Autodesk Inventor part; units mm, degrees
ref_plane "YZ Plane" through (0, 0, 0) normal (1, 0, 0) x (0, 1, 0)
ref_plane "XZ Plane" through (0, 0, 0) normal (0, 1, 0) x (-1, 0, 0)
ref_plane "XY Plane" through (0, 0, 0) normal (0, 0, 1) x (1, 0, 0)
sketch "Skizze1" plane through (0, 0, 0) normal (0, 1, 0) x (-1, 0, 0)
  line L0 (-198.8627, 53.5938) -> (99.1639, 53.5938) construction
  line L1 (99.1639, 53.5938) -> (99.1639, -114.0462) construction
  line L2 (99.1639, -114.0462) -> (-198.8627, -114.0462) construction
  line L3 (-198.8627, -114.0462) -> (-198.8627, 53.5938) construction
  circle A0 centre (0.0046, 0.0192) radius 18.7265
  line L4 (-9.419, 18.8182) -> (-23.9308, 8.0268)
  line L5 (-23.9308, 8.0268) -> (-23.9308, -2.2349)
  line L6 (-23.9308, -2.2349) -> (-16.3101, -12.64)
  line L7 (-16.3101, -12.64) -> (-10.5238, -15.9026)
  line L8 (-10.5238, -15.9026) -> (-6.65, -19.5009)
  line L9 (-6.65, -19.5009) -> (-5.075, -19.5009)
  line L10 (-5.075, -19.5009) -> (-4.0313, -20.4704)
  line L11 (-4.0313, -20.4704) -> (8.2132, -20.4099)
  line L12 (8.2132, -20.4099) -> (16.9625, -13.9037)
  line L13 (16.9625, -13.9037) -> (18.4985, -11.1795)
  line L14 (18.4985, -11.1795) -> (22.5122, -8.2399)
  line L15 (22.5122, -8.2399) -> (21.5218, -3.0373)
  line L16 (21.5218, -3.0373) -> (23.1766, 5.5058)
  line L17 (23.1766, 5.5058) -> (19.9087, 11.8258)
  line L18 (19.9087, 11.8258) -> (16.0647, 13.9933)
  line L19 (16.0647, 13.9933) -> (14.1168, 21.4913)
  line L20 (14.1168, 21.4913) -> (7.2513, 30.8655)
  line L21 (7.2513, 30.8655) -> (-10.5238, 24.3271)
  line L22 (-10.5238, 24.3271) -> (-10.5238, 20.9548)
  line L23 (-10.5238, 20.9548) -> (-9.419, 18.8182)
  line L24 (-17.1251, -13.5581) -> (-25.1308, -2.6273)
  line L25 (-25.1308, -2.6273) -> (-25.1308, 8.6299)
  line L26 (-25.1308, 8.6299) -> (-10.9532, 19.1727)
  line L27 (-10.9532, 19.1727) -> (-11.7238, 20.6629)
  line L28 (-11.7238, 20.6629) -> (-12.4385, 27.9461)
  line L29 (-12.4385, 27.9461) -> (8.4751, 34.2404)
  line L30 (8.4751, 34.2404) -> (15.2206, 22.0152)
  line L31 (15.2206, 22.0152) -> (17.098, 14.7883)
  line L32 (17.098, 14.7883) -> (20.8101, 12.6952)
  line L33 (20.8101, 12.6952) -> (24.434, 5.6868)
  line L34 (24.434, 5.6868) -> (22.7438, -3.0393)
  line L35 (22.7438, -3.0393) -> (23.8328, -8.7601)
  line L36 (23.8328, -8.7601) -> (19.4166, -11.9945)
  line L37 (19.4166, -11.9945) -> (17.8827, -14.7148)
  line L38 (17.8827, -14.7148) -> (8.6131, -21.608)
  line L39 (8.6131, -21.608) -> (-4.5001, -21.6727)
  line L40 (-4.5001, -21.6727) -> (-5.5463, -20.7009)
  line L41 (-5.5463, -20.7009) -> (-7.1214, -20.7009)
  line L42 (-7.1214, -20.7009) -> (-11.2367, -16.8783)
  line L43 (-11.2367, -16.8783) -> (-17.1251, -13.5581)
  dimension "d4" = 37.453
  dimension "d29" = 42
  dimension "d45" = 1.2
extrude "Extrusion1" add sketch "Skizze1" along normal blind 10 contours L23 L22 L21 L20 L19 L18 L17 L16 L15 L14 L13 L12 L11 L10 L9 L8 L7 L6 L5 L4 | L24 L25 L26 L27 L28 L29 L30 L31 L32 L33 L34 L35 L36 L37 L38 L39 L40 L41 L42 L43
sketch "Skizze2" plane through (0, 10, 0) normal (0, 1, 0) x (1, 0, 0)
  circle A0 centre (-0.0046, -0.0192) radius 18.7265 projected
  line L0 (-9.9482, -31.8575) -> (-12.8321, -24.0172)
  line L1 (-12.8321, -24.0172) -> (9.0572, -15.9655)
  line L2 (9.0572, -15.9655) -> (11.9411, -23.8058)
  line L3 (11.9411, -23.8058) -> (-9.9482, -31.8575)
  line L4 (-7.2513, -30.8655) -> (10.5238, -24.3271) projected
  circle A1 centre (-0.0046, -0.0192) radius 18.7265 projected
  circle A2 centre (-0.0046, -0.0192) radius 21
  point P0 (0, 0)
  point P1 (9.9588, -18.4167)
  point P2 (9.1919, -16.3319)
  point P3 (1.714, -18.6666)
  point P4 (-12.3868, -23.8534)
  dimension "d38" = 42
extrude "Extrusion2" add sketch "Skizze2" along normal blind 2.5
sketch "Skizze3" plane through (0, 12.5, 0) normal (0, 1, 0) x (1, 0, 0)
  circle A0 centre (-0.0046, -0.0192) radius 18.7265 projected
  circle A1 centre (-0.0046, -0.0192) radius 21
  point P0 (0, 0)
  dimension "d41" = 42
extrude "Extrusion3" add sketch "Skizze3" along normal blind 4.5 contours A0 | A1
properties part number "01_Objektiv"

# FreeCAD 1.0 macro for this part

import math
import FreeCAD as App
import Part
import Sketcher
Q = App.Units.Quantity


def add_polygon(sketch, points):
    """Adds a closed chain of lines whose ends are joined by coincident constraints."""
    first, n = sketch.GeometryCount, len(points)
    for a, b in zip(points, points[1:] + points[:1]):
        sketch.addGeometry(Part.LineSegment(App.Vector(*a, 0), App.Vector(*b, 0)), False)
    for i in range(n):
        sketch.addConstraint(Sketcher.Constraint("Coincident", first + i, 2, first + (i + 1) % n, 1))

doc = App.newDocument("Part")
body = doc.addObject("PartDesign::Body", "Body")

# Sketch on XZ plane
sketch1 = body.newObject("Sketcher::SketchObject", "Sketch")
sketch1.AttachmentSupport = (doc.getObject("XZ_Plane"), [""])
sketch1.MapMode = "FlatFace"
add_polygon(sketch1, [(25.1, -2.6), (17.1, -13.6), (11.2, -16.9), (7.1, -20.7), (5.5, -20.7), (4.5, -21.7), (-8.6, -21.6), (-17.9, -14.7), (-19.4, -12), (-23.8, -8.8), (-22.7, -3), (-24.4, 5.7), (-20.8, 12.7), (-17.1, 14.8), (-15.2, 22), (-8.5, 34.2), (12.4, 27.9), (11.7, 20.7), (11, 19.2), (25.1, 8.6)])  # lines 0-19
sketch1.addGeometry(Part.Circle(App.Vector(0, 0, 0), App.Vector(0, 0, 1), 18.7), False)  # 20
sketch1.addConstraint(Sketcher.Constraint("Horizontal", 3))
sketch1.addConstraint(Sketcher.Constraint("Vertical", 19))
sketch1.addConstraint(Sketcher.Constraint("Parallel", 2, 4))
sketch1.addConstraint(Sketcher.Constraint("Perpendicular", 1, 7))
sketch1.addConstraint(Sketcher.Constraint("Perpendicular", 0, 8))
sketch1.addConstraint(Sketcher.Constraint("Perpendicular", 7, 12))
sketch1.addConstraint(Sketcher.Constraint("Parallel", 11, 17))
sketch1.addConstraint(Sketcher.Constraint("Parallel", 6, 18))
sketch1.addConstraint(Sketcher.Constraint("Diameter", 20, Q("37.453 mm")))
sketch1.addConstraint(Sketcher.Constraint("DistanceX", -1, 1, 4, 2, Q("4.5 mm")))
sketch1.addConstraint(Sketcher.Constraint("Angle", 0, Q("-126.219 deg")))
sketch1.addConstraint(Sketcher.Constraint("Angle", 15, Q("-16.75 deg")))
sketch1.addConstraint(Sketcher.Constraint("Distance", 1, Q("6.76 mm")))
sketch1.addConstraint(Sketcher.Constraint("Distance", 11, Q("7.89 mm")))
sketch1.addConstraint(Sketcher.Constraint("DistanceX", 3, 2, 3, 1, Q("1.575 mm")))
sketch1.addConstraint(Sketcher.Constraint("DistanceY", 8, 2, -1, 1, Q("8.76 mm")))
sketch1.addConstraint(Sketcher.Constraint("DistanceX", 11, 2, -1, 1, Q("20.81 mm")))
sketch1.addConstraint(Sketcher.Constraint("DistanceY", -1, 1, 18, 2, Q("8.63 mm")))
sketch1.addConstraint(Sketcher.Constraint("DistanceY", 2, 2, 20, 3, Q("20.72 mm")))
sketch1.addConstraint(Sketcher.Constraint("DistanceX", 8, 2, 6, 2, Q("5.95 mm")))
sketch1.addConstraint(Sketcher.Constraint("DistanceY", 11, 2, 13, 2, Q("9.32 mm")))
sketch1.addConstraint(Sketcher.Constraint("Distance", 0, Q("13.549 mm")))
sketch1.addConstraint(Sketcher.Constraint("Distance", 4, Q("1.428 mm")))
sketch1.addConstraint(Sketcher.Constraint("Distance", 7, Q("3.123 mm")))
sketch1.addConstraint(Sketcher.Constraint("Distance", 8, Q("5.474 mm")))
sketch1.addConstraint(Sketcher.Constraint("Distance", 18, Q("17.668 mm")))
sketch1.addConstraint(Sketcher.Constraint("DistanceY", 19, 2, 19, 1, Q("11.2572 mm")))
sketch1.addConstraint(Sketcher.Constraint("DistanceX", -1, 1, 0, 2, Q("17.125 mm")))
sketch1.addConstraint(Sketcher.Constraint("DistanceY", 2, 2, -1, 1, Q("20.701 mm")))
sketch1.addConstraint(Sketcher.Constraint("DistanceX", 5, 2, -1, 1, Q("8.613 mm")))
sketch1.addConstraint(Sketcher.Constraint("DistanceY", 5, 2, -1, 1, Q("21.608 mm")))
sketch1.addConstraint(Sketcher.Constraint("DistanceX", 10, 2, -1, 1, Q("24.434 mm")))
sketch1.addConstraint(Sketcher.Constraint("DistanceX", 12, 2, -1, 1, Q("17.098 mm")))
sketch1.addConstraint(Sketcher.Constraint("DistanceX", 14, 2, -1, 1, Q("8.475 mm")))
sketch1.addConstraint(Sketcher.Constraint("DistanceY", -1, 1, 15, 2, Q("27.946 mm")))
sketch1.addConstraint(Sketcher.Constraint("DistanceY", -1, 1, 16, 2, Q("20.663 mm")))
sketch1.addConstraint(Sketcher.Constraint("DistanceX", 20, 3, 2, 2, Q("7.126 mm")))
sketch1.addConstraint(Sketcher.Constraint("DistanceX", 6, 2, 20, 3, Q("17.878 mm")))
sketch1.addConstraint(Sketcher.Constraint("DistanceX", 8, 2, 9, 2, Q("1.089 mm")))
sketch1.addConstraint(Sketcher.Constraint("DistanceY", 9, 2, 10, 2, Q("8.726 mm")))
sketch1.addConstraint(Sketcher.Constraint("DistanceY", 8, 2, 10, 2, Q("14.447 mm")))
sketch1.addConstraint(Sketcher.Constraint("DistanceX", 13, 2, 20, 3, Q("15.216 mm")))
sketch1.addConstraint(Sketcher.Constraint("DistanceY", 12, 2, 14, 2, Q("19.452 mm")))
pad1 = body.newObject("PartDesign::Pad", "Pad")
pad1.Profile = sketch1
pad1.Length = 10
pad1.Reversed = True

# Sketch on XZ plane
sketch2 = body.newObject("Sketcher::SketchObject", "Sketch001")
sketch2.AttachmentSupport = (doc.getObject("XZ_Plane"), [""])
sketch2.MapMode = "FlatFace"
sketch2.AttachmentOffset = App.Placement(App.Vector(0, 0, -10), App.Rotation())
sketch2.addGeometry(Part.LineSegment(App.Vector(-3.8, 20.7, 0), App.Vector(-12.8, 24, 0)), False)
sketch2.addGeometry(Part.LineSegment(App.Vector(-12.8, 24, 0), App.Vector(-9.9, 31.9, 0)), False)
sketch2.addGeometry(Part.LineSegment(App.Vector(-9.9, 31.9, 0), App.Vector(-7.3, 30.9, 0)), False)
sketch2.addGeometry(Part.LineSegment(App.Vector(-7.3, 30.9, 0), App.Vector(10.5, 24.3, 0)), False)
sketch2.addGeometry(Part.LineSegment(App.Vector(10.5, 24.3, 0), App.Vector(11.9, 23.8, 0)), False)
sketch2.addGeometry(Part.LineSegment(App.Vector(11.9, 23.8, 0), App.Vector(10, 18.5, 0)), False)
sketch2.addGeometry(Part.ArcOfCircle(Part.Circle(App.Vector(0, 0, 0), App.Vector(0, 0, 1), 21), math.radians(100), math.radians(422)), False)
sketch2.addConstraint(Sketcher.Constraint("Coincident", 0, 2, 1, 1))
sketch2.addConstraint(Sketcher.Constraint("Coincident", 1, 2, 2, 1))
sketch2.addConstraint(Sketcher.Constraint("Coincident", 2, 2, 3, 1))
sketch2.addConstraint(Sketcher.Constraint("Coincident", 3, 2, 4, 1))
sketch2.addConstraint(Sketcher.Constraint("Coincident", 4, 2, 5, 1))
sketch2.addConstraint(Sketcher.Constraint("Coincident", 5, 2, 6, 2))
sketch2.addConstraint(Sketcher.Constraint("Coincident", 6, 1, 0, 1))
sketch2.addConstraint(Sketcher.Constraint("Perpendicular", 0, 1))
sketch2.addConstraint(Sketcher.Constraint("Perpendicular", 1, 2))
sketch2.addConstraint(Sketcher.Constraint("Parallel", 2, 3))
sketch2.addConstraint(Sketcher.Constraint("Parallel", 3, 4))
sketch2.addConstraint(Sketcher.Constraint("Perpendicular", 4, 5))
sketch2.addConstraint(Sketcher.Constraint("Radius", 6, Q("21 mm")))
sketch2.addConstraint(Sketcher.Constraint("DistanceY", 0, 2, 3, 2, Q("0.31 mm")))
sketch2.addConstraint(Sketcher.Constraint("DistanceY", 5, 2, 6, 1, Q("2.19 mm")))
sketch2.addConstraint(Sketcher.Constraint("DistanceX", 0, 2, -1, 1, Q("12.832 mm")))
sketch2.addConstraint(Sketcher.Constraint("DistanceY", -1, 1, 3, 2, Q("24.327 mm")))
sketch2.addConstraint(Sketcher.Constraint("DistanceX", -1, 1, 4, 2, Q("11.941 mm")))
sketch2.addConstraint(Sketcher.Constraint("DistanceX", -1, 1, 5, 2, Q("9.986 mm")))
sketch2.addConstraint(Sketcher.Constraint("DistanceX", 6, 1, -1, 1, Q("3.761 mm")))
sketch2.addConstraint(Sketcher.Constraint("DistanceY", 6, 3, 0, 2, Q("23.998 mm")))
sketch2.addConstraint(Sketcher.Constraint("DistanceX", 1, 2, 2, 2, Q("2.697 mm")))
pad2 = body.newObject("PartDesign::Pad", "Pad001")
pad2.Profile = sketch2
pad2.Length = 2.5
pad2.Reversed = True

# Sketch on XZ plane
sketch3 = body.newObject("Sketcher::SketchObject", "Sketch002")
sketch3.AttachmentSupport = (doc.getObject("XZ_Plane"), [""])
sketch3.MapMode = "FlatFace"
sketch3.AttachmentOffset = App.Placement(App.Vector(0, 0, -12.5), App.Rotation())
sketch3.addGeometry(Part.Circle(App.Vector(0, 0, 0), App.Vector(0, 0, 1), 21), False)
sketch3.addConstraint(Sketcher.Constraint("Diameter", 0, Q("42 mm")))
sketch3.addConstraint(Sketcher.Constraint("DistanceX", 0, 3, -1, 1, Q("0.0046 mm")))
sketch3.addConstraint(Sketcher.Constraint("DistanceY", -1, 1, 0, 3, Q("0.0192 mm")))
pad3 = body.newObject("PartDesign::Pad", "Pad002")
pad3.Profile = sketch3
pad3.Length = 4.5
pad3.Reversed = True

doc.recompute()
